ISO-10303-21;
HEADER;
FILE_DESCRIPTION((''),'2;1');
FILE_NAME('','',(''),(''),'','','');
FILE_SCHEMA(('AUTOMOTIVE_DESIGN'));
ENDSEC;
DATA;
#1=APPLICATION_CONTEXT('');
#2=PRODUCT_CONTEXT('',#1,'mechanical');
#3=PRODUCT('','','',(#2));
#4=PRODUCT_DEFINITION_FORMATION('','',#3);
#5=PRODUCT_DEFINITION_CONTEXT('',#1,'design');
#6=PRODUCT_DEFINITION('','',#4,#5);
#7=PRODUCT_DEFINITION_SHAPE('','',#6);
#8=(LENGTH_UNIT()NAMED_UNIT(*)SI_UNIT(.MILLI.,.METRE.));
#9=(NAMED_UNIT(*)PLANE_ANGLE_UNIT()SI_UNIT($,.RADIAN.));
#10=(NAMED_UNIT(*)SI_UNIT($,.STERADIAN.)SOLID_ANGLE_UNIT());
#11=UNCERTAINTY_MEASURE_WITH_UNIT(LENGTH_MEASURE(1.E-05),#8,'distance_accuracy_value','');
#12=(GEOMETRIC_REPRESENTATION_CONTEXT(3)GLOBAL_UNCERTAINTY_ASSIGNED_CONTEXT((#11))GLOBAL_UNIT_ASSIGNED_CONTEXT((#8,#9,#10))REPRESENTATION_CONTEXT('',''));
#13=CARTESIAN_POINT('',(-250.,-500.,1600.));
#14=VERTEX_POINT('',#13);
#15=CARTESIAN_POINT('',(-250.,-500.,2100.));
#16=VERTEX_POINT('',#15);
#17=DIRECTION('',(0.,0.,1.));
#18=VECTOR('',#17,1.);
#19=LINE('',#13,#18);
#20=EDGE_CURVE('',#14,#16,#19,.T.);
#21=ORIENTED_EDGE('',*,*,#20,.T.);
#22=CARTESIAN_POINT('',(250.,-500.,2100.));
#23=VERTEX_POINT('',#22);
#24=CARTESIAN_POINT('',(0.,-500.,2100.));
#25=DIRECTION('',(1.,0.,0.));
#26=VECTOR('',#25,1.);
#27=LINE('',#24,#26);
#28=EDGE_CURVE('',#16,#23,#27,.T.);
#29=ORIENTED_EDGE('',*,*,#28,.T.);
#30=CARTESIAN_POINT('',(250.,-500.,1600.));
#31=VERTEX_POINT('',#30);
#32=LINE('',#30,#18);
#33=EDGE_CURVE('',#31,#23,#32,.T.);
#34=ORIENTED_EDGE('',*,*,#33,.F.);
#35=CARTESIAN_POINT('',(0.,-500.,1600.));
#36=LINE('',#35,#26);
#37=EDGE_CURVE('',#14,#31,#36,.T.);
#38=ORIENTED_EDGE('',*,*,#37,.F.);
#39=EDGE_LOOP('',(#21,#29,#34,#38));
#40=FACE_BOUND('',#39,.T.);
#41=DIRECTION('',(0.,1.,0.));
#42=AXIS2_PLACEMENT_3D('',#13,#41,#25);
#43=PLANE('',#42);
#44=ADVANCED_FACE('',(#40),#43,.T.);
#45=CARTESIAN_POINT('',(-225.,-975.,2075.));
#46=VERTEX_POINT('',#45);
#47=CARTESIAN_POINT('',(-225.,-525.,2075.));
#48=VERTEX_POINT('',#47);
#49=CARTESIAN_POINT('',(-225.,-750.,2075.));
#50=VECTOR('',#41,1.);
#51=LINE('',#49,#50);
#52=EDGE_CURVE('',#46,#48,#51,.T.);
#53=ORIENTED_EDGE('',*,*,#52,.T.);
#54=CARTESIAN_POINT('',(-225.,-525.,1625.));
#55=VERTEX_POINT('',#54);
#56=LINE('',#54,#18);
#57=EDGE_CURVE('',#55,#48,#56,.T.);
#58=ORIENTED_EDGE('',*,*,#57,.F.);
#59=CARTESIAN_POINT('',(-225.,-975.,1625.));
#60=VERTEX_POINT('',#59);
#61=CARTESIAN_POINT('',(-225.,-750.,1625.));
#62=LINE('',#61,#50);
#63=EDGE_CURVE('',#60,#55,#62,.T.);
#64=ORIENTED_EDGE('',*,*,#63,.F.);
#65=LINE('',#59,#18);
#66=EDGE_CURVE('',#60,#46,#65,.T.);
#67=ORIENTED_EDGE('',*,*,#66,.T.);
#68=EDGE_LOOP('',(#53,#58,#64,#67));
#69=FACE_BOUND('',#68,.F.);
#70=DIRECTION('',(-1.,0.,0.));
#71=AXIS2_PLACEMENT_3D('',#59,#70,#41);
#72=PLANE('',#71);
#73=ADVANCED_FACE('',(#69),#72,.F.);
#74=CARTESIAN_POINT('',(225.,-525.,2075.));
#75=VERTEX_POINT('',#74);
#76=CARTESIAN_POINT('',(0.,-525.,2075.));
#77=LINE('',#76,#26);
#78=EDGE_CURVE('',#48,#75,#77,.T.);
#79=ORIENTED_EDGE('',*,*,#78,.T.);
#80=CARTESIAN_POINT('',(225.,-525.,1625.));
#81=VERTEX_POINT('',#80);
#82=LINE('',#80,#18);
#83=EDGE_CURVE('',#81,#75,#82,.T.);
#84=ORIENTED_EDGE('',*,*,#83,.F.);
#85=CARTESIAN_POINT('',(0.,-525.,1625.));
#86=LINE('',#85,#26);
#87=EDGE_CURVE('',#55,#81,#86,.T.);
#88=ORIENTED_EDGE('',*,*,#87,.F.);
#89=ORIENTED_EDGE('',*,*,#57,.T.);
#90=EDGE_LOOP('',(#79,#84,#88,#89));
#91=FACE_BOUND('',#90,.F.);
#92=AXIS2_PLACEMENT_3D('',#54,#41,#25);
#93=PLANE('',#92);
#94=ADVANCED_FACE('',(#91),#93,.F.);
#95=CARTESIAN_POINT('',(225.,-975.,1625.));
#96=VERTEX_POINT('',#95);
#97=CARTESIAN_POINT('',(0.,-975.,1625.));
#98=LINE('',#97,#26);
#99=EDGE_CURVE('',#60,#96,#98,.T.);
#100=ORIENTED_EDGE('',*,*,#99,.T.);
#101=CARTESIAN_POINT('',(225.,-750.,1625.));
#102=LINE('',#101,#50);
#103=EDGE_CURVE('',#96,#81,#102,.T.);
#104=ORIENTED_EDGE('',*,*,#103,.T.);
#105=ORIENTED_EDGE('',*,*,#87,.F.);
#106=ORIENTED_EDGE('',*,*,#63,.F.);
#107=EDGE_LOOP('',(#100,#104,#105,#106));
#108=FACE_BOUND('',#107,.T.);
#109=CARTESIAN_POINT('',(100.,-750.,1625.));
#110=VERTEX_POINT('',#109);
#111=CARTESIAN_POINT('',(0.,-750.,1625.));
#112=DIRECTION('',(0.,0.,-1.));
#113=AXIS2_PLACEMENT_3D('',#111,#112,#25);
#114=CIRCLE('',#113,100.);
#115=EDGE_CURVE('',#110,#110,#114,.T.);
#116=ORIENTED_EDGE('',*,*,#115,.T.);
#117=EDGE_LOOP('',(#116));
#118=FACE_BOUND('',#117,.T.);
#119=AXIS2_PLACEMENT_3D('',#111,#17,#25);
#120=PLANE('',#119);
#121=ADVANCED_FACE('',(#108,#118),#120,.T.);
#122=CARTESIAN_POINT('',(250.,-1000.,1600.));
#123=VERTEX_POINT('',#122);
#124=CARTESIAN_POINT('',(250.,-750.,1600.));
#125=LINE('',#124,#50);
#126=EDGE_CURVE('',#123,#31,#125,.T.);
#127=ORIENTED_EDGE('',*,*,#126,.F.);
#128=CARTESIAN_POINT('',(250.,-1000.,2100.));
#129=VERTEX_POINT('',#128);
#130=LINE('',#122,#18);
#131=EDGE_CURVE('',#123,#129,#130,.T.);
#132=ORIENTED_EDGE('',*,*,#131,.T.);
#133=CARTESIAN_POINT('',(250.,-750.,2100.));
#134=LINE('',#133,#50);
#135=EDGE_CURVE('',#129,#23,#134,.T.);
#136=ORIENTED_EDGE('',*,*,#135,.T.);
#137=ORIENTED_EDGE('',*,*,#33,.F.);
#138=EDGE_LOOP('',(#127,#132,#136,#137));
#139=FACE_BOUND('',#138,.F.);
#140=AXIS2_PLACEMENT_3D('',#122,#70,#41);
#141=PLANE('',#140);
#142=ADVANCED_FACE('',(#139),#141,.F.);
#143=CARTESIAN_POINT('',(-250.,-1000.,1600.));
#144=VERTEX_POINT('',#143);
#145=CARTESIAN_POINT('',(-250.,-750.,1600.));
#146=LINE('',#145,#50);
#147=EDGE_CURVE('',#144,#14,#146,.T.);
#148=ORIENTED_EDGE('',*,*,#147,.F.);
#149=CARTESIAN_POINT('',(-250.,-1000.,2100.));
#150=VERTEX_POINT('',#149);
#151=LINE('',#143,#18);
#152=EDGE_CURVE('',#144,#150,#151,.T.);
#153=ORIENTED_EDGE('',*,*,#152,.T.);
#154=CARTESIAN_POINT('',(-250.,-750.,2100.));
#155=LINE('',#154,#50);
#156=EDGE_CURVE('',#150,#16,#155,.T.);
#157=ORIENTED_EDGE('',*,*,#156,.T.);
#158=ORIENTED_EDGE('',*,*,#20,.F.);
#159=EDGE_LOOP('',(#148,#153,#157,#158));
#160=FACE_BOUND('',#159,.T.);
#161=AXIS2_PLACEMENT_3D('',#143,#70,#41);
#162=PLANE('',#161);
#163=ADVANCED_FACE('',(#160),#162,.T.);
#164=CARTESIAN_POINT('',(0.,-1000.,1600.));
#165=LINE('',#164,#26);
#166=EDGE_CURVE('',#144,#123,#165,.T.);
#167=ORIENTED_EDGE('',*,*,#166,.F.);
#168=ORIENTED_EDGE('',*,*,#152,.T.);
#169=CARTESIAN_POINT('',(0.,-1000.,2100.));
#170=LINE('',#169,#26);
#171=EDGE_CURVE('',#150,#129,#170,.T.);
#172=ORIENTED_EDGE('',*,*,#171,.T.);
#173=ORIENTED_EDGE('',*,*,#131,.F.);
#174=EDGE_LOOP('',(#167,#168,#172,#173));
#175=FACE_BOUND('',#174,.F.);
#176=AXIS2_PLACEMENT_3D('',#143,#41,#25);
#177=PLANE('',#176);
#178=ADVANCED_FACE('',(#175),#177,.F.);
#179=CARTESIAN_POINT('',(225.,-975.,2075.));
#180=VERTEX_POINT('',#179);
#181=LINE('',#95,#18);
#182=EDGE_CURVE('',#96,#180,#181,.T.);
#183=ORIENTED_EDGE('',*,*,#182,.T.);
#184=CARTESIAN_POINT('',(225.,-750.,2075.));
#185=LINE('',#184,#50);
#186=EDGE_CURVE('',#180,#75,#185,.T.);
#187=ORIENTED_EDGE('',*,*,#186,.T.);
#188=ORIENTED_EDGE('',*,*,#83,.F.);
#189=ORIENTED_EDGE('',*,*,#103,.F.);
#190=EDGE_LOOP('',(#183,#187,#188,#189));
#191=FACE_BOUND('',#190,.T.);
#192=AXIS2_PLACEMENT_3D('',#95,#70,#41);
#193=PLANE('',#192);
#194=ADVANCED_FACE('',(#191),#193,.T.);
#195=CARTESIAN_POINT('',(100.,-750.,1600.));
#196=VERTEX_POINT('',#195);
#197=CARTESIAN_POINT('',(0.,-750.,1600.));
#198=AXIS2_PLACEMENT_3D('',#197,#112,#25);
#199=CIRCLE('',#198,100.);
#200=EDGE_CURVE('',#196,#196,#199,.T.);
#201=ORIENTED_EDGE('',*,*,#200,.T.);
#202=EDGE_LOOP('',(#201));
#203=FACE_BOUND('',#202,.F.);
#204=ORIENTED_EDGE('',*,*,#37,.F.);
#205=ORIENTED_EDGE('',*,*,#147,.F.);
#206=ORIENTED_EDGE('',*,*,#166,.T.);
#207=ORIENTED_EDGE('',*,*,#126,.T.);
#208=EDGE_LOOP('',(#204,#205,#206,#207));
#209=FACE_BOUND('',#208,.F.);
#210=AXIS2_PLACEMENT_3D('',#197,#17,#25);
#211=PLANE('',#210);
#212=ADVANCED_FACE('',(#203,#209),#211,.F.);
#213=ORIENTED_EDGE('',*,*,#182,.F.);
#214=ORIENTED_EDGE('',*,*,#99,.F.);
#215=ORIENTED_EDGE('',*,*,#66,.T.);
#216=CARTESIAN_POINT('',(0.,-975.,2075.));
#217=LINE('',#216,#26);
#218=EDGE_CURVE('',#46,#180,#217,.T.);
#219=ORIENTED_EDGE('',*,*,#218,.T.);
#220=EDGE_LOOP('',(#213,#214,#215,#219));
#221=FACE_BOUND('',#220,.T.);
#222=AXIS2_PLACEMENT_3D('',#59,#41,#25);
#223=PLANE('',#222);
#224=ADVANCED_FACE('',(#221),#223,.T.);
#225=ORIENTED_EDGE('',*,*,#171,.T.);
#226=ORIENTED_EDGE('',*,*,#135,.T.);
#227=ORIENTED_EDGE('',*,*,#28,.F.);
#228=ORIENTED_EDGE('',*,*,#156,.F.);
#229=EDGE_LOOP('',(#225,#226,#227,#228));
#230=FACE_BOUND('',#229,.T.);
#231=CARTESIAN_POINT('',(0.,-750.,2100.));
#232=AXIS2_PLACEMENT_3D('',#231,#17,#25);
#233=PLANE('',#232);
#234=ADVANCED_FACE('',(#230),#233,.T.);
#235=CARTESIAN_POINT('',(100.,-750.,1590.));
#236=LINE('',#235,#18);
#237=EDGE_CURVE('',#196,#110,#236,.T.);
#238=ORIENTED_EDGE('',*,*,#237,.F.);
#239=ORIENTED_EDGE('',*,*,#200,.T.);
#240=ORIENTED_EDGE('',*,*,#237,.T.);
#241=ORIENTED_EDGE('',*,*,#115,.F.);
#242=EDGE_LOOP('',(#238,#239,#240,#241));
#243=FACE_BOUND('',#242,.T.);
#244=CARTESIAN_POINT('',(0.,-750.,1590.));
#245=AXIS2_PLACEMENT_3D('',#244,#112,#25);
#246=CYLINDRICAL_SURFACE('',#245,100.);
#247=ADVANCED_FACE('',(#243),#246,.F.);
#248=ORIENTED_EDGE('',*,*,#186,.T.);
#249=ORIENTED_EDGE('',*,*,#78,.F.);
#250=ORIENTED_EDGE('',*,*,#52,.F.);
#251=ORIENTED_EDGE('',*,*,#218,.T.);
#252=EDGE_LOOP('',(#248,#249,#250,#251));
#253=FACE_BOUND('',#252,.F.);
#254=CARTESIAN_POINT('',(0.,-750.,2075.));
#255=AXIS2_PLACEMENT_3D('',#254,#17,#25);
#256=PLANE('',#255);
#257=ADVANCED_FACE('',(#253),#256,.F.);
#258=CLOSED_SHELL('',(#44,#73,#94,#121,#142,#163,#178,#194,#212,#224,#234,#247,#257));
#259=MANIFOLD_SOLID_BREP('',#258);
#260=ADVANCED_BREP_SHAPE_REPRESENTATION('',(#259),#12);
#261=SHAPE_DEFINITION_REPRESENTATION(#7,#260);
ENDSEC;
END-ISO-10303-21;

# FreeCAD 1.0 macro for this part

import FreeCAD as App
import Part
import Sketcher

doc = App.newDocument("Part")
body = doc.addObject("PartDesign::Body", "Body")

# Sketch on XY plane
sketch1 = body.newObject("Sketcher::SketchObject", "Sketch")
sketch1.AttachmentSupport = (doc.getObject("XY_Plane"), [""])
sketch1.MapMode = "FlatFace"
sketch1.AttachmentOffset = App.Placement(App.Vector(0, 0, -10), App.Rotation())
sketch1.addGeometry(Part.Circle(App.Vector(250, 250, 0), App.Vector(0, 0, 1), 100), False)
sketch1.addConstraint(Sketcher.Constraint("Diameter", 0, 200.0))
sketch1.addConstraint(Sketcher.Constraint("DistanceX", -1, 1, 0, 3, 250.0))
sketch1.addConstraint(Sketcher.Constraint("DistanceY", -1, 1, 0, 3, 250.0))
pad1 = body.newObject("PartDesign::Pad", "Pad")
pad1.Profile = sketch1
pad1.Length = 50
body2 = doc.addObject("PartDesign::Body", "Body001")

# Sketch on XY plane
sketch2 = body2.newObject("Sketcher::SketchObject", "Sketch001")
sketch2.AttachmentSupport = (doc.getObject("XY_Plane001"), [""])
sketch2.MapMode = "FlatFace"
sketch2.AttachmentOffset = App.Placement(App.Vector(0, 0, 25), App.Rotation())
sketch2.addGeometry(Part.LineSegment(App.Vector(25, 475, 0), App.Vector(25, 25, 0)), False)
sketch2.addGeometry(Part.LineSegment(App.Vector(25, 25, 0), App.Vector(475, 25, 0)), False)
sketch2.addGeometry(Part.LineSegment(App.Vector(475, 25, 0), App.Vector(475, 475, 0)), False)
sketch2.addGeometry(Part.LineSegment(App.Vector(475, 475, 0), App.Vector(25, 475, 0)), False)
sketch2.addConstraint(Sketcher.Constraint("Coincident", 0, 2, 1, 1))
sketch2.addConstraint(Sketcher.Constraint("Coincident", 1, 2, 2, 1))
sketch2.addConstraint(Sketcher.Constraint("Coincident", 2, 2, 3, 1))
sketch2.addConstraint(Sketcher.Constraint("Coincident", 3, 2, 0, 1))
sketch2.addConstraint(Sketcher.Constraint("Vertical", 0))
sketch2.addConstraint(Sketcher.Constraint("Horizontal", 1))
sketch2.addConstraint(Sketcher.Constraint("Vertical", 2))
sketch2.addConstraint(Sketcher.Constraint("Horizontal", 3))
sketch2.addConstraint(Sketcher.Constraint("Equal", 3, 0))
sketch2.addConstraint(Sketcher.Constraint("DistanceX", 1, 1, 1, 2, 450.0))
sketch2.addConstraint(Sketcher.Constraint("DistanceX", -1, 1, 0, 2, 25.0))
sketch2.addConstraint(Sketcher.Constraint("DistanceY", -1, 1, 0, 2, 25.0))
pad2 = body2.newObject("PartDesign::Pad", "Pad001")
pad2.Profile = sketch2
pad2.Length = 450
body3 = doc.addObject("PartDesign::Body", "Body002")

# Sketch on XY plane
sketch3 = body3.newObject("Sketcher::SketchObject", "Sketch002")
sketch3.AttachmentSupport = (doc.getObject("XY_Plane002"), [""])
sketch3.MapMode = "FlatFace"
sketch3.addGeometry(Part.LineSegment(App.Vector(0, 500, 0), App.Vector(0, 0, 0)), False)
sketch3.addGeometry(Part.LineSegment(App.Vector(0, 0, 0), App.Vector(500, 0, 0)), False)
sketch3.addGeometry(Part.LineSegment(App.Vector(500, 0, 0), App.Vector(500, 500, 0)), False)
sketch3.addGeometry(Part.LineSegment(App.Vector(500, 500, 0), App.Vector(0, 500, 0)), False)
sketch3.addConstraint(Sketcher.Constraint("Coincident", 0, 2, 1, 1))
sketch3.addConstraint(Sketcher.Constraint("Coincident", 1, 2, 2, 1))
sketch3.addConstraint(Sketcher.Constraint("Coincident", 2, 2, 3, 1))
sketch3.addConstraint(Sketcher.Constraint("Coincident", 3, 2, 0, 1))
sketch3.addConstraint(Sketcher.Constraint("Vertical", 0))
sketch3.addConstraint(Sketcher.Constraint("Horizontal", 1))
sketch3.addConstraint(Sketcher.Constraint("Vertical", 2))
sketch3.addConstraint(Sketcher.Constraint("Horizontal", 3))
sketch3.addConstraint(Sketcher.Constraint("Coincident", 0, 2, -1, 1))
sketch3.addConstraint(Sketcher.Constraint("Equal", 3, 0))
sketch3.addConstraint(Sketcher.Constraint("DistanceX", 1, 1, 1, 2, 500.0))
pad3 = body3.newObject("PartDesign::Pad", "Pad002")
pad3.Profile = sketch3
pad3.Length = 500
doc.recompute()

boolean = body3.newObject("PartDesign::Boolean", "Boolean")
boolean.Type = "Cut"
boolean.addObjects([body2])
doc.recompute()

boolean2 = body3.newObject("PartDesign::Boolean", "Boolean001")
boolean2.Type = "Cut"
boolean2.addObjects([body])
body4 = doc.addObject("PartDesign::Body", "Body003")
doc.recompute()

body3.Placement = App.Placement(App.Vector(-250, -1000, 1600), App.Rotation(App.Vector(0, 0, 1), 0))
boolean3 = body4.newObject("PartDesign::Boolean", "Boolean002")
boolean3.Type = "Fuse"
boolean3.addObjects([body3])

doc.recompute()
